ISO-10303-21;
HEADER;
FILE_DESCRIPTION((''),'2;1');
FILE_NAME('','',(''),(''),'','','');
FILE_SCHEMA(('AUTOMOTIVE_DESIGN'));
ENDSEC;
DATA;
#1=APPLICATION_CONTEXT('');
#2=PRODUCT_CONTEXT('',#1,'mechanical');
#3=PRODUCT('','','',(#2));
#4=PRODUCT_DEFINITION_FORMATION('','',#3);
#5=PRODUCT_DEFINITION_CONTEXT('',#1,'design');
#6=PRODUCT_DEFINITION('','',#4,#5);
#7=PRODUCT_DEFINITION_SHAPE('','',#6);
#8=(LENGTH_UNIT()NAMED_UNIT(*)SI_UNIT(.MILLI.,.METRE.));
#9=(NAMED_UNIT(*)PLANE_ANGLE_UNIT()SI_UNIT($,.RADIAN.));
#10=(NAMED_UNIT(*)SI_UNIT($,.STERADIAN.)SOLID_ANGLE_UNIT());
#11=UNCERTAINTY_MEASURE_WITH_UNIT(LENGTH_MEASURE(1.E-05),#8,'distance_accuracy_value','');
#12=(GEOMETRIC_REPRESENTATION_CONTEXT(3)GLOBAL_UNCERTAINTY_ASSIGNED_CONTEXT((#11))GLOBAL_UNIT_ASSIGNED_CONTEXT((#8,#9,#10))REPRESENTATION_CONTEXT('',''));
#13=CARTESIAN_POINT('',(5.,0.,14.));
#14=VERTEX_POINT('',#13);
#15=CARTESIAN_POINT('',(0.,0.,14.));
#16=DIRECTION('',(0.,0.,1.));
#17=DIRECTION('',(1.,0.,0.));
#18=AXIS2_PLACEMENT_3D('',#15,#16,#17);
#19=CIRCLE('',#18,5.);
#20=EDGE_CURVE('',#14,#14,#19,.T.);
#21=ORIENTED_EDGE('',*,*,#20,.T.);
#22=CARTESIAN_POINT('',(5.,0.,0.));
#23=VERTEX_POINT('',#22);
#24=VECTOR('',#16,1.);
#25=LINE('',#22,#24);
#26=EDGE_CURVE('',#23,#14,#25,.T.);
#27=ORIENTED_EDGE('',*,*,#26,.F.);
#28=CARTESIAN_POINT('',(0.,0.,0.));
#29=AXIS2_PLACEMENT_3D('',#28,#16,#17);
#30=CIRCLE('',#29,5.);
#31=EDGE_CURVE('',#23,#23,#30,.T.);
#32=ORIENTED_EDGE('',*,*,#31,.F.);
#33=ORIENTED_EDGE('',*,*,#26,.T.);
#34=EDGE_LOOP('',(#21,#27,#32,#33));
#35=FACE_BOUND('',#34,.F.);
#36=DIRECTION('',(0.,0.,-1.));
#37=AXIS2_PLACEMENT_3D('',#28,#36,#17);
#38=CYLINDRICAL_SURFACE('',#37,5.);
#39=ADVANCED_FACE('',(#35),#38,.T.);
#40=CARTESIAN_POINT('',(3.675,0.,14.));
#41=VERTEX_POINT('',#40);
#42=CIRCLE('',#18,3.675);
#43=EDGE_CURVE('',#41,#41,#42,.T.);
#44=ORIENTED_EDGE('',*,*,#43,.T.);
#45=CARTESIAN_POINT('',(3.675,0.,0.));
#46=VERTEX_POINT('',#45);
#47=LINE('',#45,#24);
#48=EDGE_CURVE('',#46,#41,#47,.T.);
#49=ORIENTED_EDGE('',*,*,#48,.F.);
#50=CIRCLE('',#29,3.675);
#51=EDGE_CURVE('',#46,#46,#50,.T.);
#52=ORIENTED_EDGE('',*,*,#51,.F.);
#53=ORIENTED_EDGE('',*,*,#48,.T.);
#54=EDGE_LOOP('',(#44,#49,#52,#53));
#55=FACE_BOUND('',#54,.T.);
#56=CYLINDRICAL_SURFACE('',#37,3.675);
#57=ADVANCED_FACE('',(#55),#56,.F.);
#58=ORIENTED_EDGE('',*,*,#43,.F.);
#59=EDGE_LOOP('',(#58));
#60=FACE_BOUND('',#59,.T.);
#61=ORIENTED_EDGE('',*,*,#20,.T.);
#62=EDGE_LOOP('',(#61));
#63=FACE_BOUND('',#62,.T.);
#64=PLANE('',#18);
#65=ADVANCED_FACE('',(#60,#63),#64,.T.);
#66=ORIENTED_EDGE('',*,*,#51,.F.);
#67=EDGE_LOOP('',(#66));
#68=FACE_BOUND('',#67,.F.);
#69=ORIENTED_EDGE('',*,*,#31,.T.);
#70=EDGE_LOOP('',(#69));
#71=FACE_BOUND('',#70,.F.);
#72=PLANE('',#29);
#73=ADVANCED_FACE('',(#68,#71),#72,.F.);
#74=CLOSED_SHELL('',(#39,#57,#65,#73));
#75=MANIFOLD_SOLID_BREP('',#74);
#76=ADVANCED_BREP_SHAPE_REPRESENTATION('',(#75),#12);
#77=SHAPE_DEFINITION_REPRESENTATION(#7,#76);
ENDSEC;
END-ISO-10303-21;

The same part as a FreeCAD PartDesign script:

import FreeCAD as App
import Part
import Sketcher

V = App.Vector
Q = App.Units.Quantity

doc = App.newDocument("Part")
body = doc.addObject("PartDesign::Body", "Body")

sketch1 = body.newObject("Sketcher::SketchObject", "Sketch")
sketch1.AttachmentSupport = (doc.getObject("XY_Plane"), [""])
sketch1.MapMode = "FlatFace"
sketch1.addGeometry([
    Part.Circle(V(0, 0, 0), V(0, 0, 1), 5),
    Part.Circle(V(0, 0, 0), V(0, 0, 1), 3.7),
], False)
sketch1.addConstraint([
    Sketcher.Constraint("Coincident", 0, 3, -1, 1),
    Sketcher.Constraint("Coincident", 1, 3, -1, 1),
    Sketcher.Constraint("Diameter", 0, Q("10 mm")),
    Sketcher.Constraint("Diameter", 1, Q("7.35 mm")),
])
pad1 = body.newObject("PartDesign::Pad", "Pad")
pad1.Profile = sketch1
pad1.Length = 14

doc.recompute()
